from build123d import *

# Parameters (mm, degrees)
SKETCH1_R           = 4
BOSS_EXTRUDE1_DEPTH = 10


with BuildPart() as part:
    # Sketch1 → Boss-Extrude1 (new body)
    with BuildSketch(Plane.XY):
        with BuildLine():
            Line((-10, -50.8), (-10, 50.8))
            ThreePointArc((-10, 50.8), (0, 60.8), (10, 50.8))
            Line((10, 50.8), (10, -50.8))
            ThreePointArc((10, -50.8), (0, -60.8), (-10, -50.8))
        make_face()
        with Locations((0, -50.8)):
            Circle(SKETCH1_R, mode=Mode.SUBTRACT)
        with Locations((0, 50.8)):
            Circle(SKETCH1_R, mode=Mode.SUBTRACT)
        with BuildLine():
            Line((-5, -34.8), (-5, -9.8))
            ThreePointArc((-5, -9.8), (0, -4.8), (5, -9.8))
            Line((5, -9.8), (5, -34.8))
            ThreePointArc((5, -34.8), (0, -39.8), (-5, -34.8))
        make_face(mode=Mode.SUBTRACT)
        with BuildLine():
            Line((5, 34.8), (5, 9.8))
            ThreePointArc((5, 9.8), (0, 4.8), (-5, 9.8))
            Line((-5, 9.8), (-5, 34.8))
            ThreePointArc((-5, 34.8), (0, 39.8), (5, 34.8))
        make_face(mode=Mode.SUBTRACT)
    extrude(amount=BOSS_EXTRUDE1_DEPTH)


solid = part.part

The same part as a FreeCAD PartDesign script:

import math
import FreeCAD as App
import Part
import Sketcher

V = App.Vector
Q = App.Units.Quantity

doc = App.newDocument("Part")
body = doc.addObject("PartDesign::Body", "Body")

# Sketch on XY plane
sketch1 = doc.addObject("Sketcher::SketchObject", "Sketch")
body.addObject(sketch1)
sketch1.AttachmentSupport = (doc.XY_Plane, [""])
sketch1.MapMode = "FlatFace"
sketch1.addGeometry([
    Part.LineSegment(V(-10, 50.8, 0), V(-10, -50.8, 0)),  # 0
    Part.ArcOfCircle(Part.Circle(V(0, -50.8, 0), V(0, 0, 1), 10), math.radians(180), math.radians(360)),  # 1
    Part.LineSegment(V(10, -50.8, 0), V(10, 50.8, 0)),  # 2
    Part.ArcOfCircle(Part.Circle(V(0, 50.8, 0), V(0, 0, 1), 10), math.radians(0), math.radians(180)),  # 3
    Part.Circle(V(0, -50.8, 0), V(0, 0, 1), 4),  # 4
    Part.LineSegment(V(-5, -34.8, 0), V(-5, -9.8, 0)),  # 5
    Part.ArcOfCircle(Part.Circle(V(0, -9.8, 0), V(0, 0, 1), 5), math.radians(0), math.radians(180)),  # 6
    Part.LineSegment(V(5, -9.8, 0), V(5, -34.8, 0)),  # 7
    Part.ArcOfCircle(Part.Circle(V(0, -34.8, 0), V(0, 0, 1), 5), math.radians(180), math.radians(360)),  # 8
    Part.LineSegment(V(5, 34.8, 0), V(5, 9.8, 0)),  # 9
    Part.ArcOfCircle(Part.Circle(V(0, 9.8, 0), V(0, 0, 1), 5), math.radians(180), math.radians(360)),  # 10
    Part.LineSegment(V(-5, 9.8, 0), V(-5, 34.8, 0)),  # 11
    Part.ArcOfCircle(Part.Circle(V(0, 34.8, 0), V(0, 0, 1), 5), math.radians(0), math.radians(180)),  # 12
    Part.Circle(V(0, 50.8, 0), V(0, 0, 1), 4),  # 13
], False)
sketch1.addConstraint([
    Sketcher.Constraint("Tangent", 0, 2, 1, 1),
    Sketcher.Constraint("Tangent", 1, 2, 2, 1),
    Sketcher.Constraint("Tangent", 2, 2, 3, 1),
    Sketcher.Constraint("Tangent", 3, 2, 0, 1),
    Sketcher.Constraint("Tangent", 5, 2, 6, 2),
    Sketcher.Constraint("Tangent", 6, 1, 7, 1),
    Sketcher.Constraint("Tangent", 7, 2, 8, 2),
    Sketcher.Constraint("Tangent", 8, 1, 5, 1),
    Sketcher.Constraint("Tangent", 9, 2, 10, 2),
    Sketcher.Constraint("Tangent", 10, 1, 11, 1),
    Sketcher.Constraint("Tangent", 11, 2, 12, 2),
    Sketcher.Constraint("Tangent", 12, 1, 9, 1),
    Sketcher.Constraint("Vertical", 0),
    Sketcher.Constraint("Vertical", 2),
    Sketcher.Constraint("Vertical", 5),
    Sketcher.Constraint("Vertical", 7),
    Sketcher.Constraint("Vertical", 9),
    Sketcher.Constraint("Vertical", 11),
    Sketcher.Constraint("Coincident", 4, 3, 1, 3),
    Sketcher.Constraint("Coincident", 13, 3, 3, 3),
    Sketcher.Constraint("Equal", 8, 10),
    Sketcher.Constraint("Equal", 4, 13),
    Sketcher.Constraint("Symmetric", 1, 3, 3, 3, -1, 1),
    Sketcher.Constraint("Symmetric", 6, 3, 10, 3, -1, 1),
    Sketcher.Constraint("Symmetric", 8, 3, 12, 3, -1),
    Sketcher.Constraint("Diameter", 4, Q("8 mm")),
    Sketcher.Constraint("Radius", 1, Q("10 mm")),
    Sketcher.Constraint("Radius", 6, Q("5 mm")),
    Sketcher.Constraint("DistanceY", 5, 1, 5, 2, Q("25 mm")),
    Sketcher.Constraint("DistanceY", 0, 2, 0, 1, Q("101.6 mm")),
    Sketcher.Constraint("DistanceY", 1, 3, 6, 3, Q("41 mm")),
])
pad1 = doc.addObject("PartDesign::Pad", "Pad")
body.addObject(pad1)
pad1.Profile = sketch1
pad1.Length = 10

doc.recompute()
